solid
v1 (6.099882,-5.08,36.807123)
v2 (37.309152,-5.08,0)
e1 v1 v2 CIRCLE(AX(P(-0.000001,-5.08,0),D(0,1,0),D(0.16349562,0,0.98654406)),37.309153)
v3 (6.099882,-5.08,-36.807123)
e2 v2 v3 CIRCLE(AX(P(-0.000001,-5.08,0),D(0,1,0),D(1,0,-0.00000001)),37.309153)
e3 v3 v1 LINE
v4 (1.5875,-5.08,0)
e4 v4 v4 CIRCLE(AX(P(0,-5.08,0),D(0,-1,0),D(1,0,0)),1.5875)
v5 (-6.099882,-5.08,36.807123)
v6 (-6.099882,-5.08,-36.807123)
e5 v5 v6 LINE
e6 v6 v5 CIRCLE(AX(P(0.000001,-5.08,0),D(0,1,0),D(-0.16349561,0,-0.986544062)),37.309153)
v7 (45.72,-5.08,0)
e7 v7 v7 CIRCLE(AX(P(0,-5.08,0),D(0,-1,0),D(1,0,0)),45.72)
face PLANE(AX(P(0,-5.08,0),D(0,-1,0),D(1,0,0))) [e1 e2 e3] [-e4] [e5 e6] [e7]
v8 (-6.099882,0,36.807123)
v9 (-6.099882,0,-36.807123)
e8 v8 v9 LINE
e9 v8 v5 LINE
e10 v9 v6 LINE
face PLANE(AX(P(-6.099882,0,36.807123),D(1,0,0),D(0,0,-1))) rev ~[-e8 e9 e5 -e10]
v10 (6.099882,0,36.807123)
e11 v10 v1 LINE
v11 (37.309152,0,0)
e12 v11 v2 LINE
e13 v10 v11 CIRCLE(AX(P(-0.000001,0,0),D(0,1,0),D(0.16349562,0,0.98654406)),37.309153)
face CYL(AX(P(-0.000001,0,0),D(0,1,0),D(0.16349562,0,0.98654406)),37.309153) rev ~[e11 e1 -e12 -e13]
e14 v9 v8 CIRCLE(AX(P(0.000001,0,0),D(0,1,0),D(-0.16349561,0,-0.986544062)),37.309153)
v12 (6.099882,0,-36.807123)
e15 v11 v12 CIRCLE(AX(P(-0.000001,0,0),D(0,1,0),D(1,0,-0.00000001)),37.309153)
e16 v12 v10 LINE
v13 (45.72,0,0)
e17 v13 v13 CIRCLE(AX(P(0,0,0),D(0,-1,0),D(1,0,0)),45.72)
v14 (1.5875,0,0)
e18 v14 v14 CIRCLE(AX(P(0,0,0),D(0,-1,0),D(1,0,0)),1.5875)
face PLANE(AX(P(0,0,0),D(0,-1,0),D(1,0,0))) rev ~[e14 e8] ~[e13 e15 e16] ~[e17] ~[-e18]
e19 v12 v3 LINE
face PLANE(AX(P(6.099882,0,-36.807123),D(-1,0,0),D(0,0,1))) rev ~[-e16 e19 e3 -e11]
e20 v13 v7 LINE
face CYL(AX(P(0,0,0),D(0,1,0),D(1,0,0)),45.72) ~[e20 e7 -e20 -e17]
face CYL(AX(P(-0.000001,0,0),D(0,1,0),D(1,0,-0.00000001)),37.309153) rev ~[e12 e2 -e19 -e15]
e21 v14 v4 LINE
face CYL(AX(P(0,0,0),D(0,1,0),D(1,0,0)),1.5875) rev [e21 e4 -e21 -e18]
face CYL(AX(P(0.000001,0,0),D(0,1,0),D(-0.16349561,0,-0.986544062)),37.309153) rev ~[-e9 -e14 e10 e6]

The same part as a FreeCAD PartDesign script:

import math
import FreeCAD as App
import Part
import Sketcher
Q = App.Units.Quantity

doc = App.newDocument("Part")
params = doc.addObject("Spreadsheet::Sheet", "Params")
for row, (alias, value) in enumerate([
    ("sketch1_diameter", "3.6 in"),
    ("sketch1_diameter2", "0.125 in"),
    ("pad1_length", "0.2 in"),
], start=1):
    params.set(f"A{row}", alias)
    params.set(f"B{row}", "=" + value)
    params.setAlias(f"B{row}", alias)

body = doc.addObject("PartDesign::Body", "Body")

sketch1 = doc.addObject("Sketcher::SketchObject", "Sketch")
body.addObject(sketch1)
sketch1.AttachmentSupport = (doc.XZ_Plane, [""])
sketch1.MapMode = "FlatFace"
sketch1.addGeometry(Part.Circle(App.Vector(0, 0, 0), App.Vector(0, 0, 1), 45.7), False)
sketch1.addGeometry(Part.LineSegment(App.Vector(-6.1, 36.8, 0), App.Vector(-6.1, -36.8, 0)), False)
sketch1.addGeometry(Part.ArcOfCircle(Part.Circle(App.Vector(0, 0, 0), App.Vector(0, 0, 1), 37.3), math.radians(99), math.radians(261)), False)
sketch1.addGeometry(Part.Circle(App.Vector(0, 0, 0), App.Vector(0, 0, 1), 1.6), False)
sketch1.addGeometry(Part.ArcOfCircle(Part.Circle(App.Vector(0, 0, 0), App.Vector(0, 0, 1), 37.3), math.radians(-81), math.radians(0)), False)
sketch1.addGeometry(Part.LineSegment(App.Vector(6.1, -36.8, 0), App.Vector(6.1, 36.8, 0)), False)
sketch1.addGeometry(Part.ArcOfCircle(Part.Circle(App.Vector(0, 0, 0), App.Vector(0, 0, 1), 37.3), math.radians(0), math.radians(81)), False)
sketch1.addConstraint(Sketcher.Constraint("Coincident", 1, 1, 2, 1))
sketch1.addConstraint(Sketcher.Constraint("Coincident", 2, 2, 1, 2))
sketch1.addConstraint(Sketcher.Constraint("Coincident", 4, 1, 5, 1))
sketch1.addConstraint(Sketcher.Constraint("Coincident", 5, 2, 6, 2))
sketch1.addConstraint(Sketcher.Constraint("Tangent", 6, 1, 4, 2))
sketch1.addConstraint(Sketcher.Constraint("Vertical", 1))
sketch1.addConstraint(Sketcher.Constraint("Vertical", 5))
sketch1.addConstraint(Sketcher.Constraint("Coincident", 0, 3, -1, 1))
sketch1.addConstraint(Sketcher.Constraint("Coincident", 2, 3, -1, 1))
sketch1.addConstraint(Sketcher.Constraint("Coincident", 3, 3, -1, 1))
sketch1.addConstraint(Sketcher.Constraint("Coincident", 4, 3, -1, 1))
sketch1.addConstraint(Sketcher.Constraint("Equal", 2, 4))
sketch1.addConstraint(Sketcher.Constraint("Equal", 4, 6))
sketch1.addConstraint(Sketcher.Constraint("PointOnObject", 6, 1, -1))
sketch1.addConstraint(Sketcher.Constraint("Horizontal", 2, 2, 4, 1))
sketch1.addConstraint(Sketcher.Constraint("Diameter", 0, Q("3.6 in")))
sketch1.addConstraint(Sketcher.Constraint("Diameter", 3, Q("0.125 in")))
sketch1.addConstraint(Sketcher.Constraint("Radius", 2, 37.309153))
sketch1.addConstraint(Sketcher.Constraint("DistanceY", 1, 2, 1, 1, 73.614246))
sketch1.setExpression("Constraints[15]", "Params.sketch1_diameter")
sketch1.setExpression("Constraints[16]", "Params.sketch1_diameter2")
pad1 = doc.addObject("PartDesign::Pad", "Pad")
body.addObject(pad1)
pad1.Profile = sketch1
pad1.setExpression("Length", "Params.pad1_length")

doc.recompute()
